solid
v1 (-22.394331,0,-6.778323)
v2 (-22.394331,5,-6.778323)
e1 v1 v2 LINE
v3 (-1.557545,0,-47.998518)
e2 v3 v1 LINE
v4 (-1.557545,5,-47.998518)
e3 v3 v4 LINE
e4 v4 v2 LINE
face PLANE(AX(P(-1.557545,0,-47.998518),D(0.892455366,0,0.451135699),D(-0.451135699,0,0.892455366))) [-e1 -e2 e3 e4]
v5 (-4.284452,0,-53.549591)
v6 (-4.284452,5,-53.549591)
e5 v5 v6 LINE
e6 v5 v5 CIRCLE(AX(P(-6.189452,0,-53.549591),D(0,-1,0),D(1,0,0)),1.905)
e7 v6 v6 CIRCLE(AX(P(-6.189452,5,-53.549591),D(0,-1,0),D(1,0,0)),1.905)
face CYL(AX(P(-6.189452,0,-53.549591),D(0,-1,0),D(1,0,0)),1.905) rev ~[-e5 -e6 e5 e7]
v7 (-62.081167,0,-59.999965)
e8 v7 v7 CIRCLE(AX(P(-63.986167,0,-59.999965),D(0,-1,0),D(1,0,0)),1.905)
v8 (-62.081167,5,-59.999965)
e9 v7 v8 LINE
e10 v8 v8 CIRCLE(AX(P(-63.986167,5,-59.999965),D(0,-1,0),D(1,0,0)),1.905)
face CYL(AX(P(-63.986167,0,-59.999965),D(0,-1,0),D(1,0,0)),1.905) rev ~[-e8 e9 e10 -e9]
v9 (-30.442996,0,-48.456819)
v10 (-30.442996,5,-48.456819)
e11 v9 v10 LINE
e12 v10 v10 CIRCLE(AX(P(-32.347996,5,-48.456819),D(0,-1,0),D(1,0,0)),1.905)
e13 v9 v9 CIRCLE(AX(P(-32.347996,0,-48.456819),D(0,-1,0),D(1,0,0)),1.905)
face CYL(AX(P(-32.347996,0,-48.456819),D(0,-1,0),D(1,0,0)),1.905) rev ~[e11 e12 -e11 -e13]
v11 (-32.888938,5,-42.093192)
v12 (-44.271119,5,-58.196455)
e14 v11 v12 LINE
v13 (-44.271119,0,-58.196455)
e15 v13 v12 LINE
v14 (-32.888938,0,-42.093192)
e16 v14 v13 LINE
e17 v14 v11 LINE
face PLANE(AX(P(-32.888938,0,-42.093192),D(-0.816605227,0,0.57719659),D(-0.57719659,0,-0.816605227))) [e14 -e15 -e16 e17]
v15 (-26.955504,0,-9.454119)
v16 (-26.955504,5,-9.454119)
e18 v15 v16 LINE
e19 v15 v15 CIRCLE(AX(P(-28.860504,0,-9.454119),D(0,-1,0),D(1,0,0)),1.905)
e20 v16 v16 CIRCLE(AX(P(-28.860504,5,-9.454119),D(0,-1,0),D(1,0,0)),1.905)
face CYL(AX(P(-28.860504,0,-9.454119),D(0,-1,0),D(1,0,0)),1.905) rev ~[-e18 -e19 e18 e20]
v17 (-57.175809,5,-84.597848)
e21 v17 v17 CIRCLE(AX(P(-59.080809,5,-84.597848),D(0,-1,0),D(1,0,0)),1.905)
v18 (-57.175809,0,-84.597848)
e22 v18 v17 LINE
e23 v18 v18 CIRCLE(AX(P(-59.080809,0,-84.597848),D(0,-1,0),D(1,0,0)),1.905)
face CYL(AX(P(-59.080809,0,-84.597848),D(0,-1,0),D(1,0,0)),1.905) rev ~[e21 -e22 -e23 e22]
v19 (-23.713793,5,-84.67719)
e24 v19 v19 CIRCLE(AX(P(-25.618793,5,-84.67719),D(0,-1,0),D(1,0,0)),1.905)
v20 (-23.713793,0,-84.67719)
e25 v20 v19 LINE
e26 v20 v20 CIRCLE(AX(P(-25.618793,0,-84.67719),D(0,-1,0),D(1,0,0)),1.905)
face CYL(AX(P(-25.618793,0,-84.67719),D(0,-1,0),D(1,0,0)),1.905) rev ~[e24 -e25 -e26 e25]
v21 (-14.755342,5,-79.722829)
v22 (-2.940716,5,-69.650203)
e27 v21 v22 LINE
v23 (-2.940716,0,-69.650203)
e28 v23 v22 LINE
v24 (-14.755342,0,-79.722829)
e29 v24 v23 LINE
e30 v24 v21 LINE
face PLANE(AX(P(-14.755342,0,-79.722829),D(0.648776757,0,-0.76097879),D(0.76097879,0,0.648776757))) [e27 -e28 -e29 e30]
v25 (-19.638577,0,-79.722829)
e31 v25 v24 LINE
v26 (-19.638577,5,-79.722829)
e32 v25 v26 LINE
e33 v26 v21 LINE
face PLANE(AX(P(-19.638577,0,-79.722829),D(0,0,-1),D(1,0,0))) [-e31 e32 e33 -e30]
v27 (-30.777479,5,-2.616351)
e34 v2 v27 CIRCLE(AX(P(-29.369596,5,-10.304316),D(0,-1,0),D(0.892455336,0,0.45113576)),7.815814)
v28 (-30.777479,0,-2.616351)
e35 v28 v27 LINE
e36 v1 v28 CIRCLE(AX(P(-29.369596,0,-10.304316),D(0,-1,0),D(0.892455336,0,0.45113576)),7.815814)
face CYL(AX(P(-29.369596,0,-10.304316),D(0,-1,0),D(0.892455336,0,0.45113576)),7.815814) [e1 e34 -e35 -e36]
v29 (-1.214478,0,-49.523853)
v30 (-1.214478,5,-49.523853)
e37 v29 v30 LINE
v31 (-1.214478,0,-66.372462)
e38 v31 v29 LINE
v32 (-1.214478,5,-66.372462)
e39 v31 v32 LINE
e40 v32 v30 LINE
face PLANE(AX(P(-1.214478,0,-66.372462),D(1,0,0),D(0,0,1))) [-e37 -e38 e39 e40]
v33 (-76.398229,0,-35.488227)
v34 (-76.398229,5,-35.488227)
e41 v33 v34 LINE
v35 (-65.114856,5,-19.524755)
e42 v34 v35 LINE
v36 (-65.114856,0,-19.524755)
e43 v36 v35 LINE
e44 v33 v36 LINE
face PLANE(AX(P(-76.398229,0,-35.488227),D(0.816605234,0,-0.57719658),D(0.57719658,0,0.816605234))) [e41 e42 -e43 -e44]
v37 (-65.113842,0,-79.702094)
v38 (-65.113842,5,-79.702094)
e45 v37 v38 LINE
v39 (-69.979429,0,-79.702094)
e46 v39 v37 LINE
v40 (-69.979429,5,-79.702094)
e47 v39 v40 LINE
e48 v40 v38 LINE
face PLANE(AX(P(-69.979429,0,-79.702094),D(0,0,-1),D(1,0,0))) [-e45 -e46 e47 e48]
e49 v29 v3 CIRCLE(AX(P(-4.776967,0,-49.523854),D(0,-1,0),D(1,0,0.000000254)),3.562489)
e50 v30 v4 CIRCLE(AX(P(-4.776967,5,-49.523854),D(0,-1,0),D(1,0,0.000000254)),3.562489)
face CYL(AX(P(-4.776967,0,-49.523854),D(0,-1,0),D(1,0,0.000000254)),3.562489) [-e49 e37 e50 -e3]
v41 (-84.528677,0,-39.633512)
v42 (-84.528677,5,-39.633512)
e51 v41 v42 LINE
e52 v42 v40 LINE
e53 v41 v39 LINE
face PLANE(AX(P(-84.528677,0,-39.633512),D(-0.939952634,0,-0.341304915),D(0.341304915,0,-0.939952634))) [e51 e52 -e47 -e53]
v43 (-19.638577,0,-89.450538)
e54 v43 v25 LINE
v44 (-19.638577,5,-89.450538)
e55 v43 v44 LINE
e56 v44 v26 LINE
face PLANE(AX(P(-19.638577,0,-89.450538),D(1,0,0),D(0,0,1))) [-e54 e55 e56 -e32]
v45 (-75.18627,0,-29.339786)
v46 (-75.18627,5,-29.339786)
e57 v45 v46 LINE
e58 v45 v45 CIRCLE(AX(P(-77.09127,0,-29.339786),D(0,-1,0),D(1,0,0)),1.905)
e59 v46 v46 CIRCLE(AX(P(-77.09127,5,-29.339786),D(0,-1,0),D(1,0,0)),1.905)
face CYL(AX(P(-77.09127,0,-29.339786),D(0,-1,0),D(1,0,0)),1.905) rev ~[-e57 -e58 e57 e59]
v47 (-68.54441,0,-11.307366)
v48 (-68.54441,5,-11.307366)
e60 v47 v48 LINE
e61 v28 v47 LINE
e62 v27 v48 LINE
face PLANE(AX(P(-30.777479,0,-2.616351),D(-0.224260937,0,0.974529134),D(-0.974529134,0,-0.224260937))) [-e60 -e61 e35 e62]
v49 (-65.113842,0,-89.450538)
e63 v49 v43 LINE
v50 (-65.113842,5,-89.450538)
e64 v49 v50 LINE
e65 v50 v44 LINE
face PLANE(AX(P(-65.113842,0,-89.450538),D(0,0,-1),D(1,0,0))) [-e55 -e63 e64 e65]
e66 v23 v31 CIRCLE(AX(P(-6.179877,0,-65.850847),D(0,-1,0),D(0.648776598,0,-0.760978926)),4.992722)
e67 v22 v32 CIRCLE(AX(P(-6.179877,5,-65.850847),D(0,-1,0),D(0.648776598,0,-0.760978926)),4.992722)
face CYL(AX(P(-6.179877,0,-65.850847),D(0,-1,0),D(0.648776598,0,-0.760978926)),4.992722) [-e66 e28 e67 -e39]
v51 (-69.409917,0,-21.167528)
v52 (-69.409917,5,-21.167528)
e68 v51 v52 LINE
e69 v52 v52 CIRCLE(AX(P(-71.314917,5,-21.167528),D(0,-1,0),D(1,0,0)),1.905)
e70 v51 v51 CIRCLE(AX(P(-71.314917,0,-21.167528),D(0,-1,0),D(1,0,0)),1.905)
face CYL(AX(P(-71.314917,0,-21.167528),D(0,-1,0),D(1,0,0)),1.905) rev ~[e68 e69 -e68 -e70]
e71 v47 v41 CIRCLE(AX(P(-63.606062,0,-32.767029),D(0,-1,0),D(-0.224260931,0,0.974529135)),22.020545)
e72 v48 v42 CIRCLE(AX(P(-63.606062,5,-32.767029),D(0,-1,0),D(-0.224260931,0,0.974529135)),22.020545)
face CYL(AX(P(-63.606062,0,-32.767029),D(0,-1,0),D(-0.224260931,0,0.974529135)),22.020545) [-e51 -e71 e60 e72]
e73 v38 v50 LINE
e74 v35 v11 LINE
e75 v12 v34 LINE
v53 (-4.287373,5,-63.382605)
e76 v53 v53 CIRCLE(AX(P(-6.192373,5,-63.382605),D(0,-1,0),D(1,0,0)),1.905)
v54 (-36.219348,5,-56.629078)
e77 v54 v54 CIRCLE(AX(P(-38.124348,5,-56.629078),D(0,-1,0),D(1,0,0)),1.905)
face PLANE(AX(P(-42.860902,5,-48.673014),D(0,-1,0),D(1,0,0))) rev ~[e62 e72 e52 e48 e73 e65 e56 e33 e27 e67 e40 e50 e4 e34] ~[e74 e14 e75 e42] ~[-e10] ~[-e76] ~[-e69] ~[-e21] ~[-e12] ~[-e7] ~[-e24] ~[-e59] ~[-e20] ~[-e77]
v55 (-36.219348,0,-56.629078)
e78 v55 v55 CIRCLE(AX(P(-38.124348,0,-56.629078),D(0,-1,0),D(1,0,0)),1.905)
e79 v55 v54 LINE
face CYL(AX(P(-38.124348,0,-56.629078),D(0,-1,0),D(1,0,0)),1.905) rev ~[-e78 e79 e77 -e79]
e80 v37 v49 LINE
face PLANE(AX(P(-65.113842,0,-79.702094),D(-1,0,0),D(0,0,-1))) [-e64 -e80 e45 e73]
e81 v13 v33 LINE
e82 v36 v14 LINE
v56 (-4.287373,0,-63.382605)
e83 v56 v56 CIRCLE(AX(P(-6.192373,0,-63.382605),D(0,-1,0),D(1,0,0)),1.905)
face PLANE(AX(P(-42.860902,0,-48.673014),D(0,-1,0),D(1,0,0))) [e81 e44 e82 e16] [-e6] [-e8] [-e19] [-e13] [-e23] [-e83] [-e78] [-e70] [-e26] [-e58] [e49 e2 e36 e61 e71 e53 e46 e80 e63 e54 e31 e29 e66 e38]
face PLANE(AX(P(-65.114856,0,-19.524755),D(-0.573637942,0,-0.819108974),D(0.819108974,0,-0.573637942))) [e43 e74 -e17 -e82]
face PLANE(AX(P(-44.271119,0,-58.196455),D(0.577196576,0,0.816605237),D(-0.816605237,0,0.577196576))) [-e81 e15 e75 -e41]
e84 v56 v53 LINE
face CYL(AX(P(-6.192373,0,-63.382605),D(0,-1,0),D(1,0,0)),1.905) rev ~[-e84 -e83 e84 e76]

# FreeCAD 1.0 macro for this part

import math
import FreeCAD as App
import Part
import Sketcher
from FreeCAD import Vector


def add_polygon(sketch, points):
    """Adds a closed chain of lines whose ends are joined by coincident constraints."""
    first, n = sketch.GeometryCount, len(points)
    for a, b in zip(points, points[1:] + points[:1]):
        sketch.addGeometry(Part.LineSegment(App.Vector(*a, 0), App.Vector(*b, 0)), False)
    for i in range(n):
        sketch.addConstraint(Sketcher.Constraint("Coincident", first + i, 2, first + (i + 1) % n, 1))

doc = App.newDocument("Part")
params = doc.addObject("Spreadsheet::Sheet", "Params")
for row, (alias, value) in enumerate([
    ("sketch1_diameter", "3.81 mm"),
    ("pad1_length", "5 mm"),
], start=1):
    params.set(f"A{row}", alias)
    params.set(f"B{row}", "=" + value)
    params.setAlias(f"B{row}", alias)

body = doc.addObject("PartDesign::Body", "Body")

# Sketch on XZ plane
sketch1 = doc.addObject("Sketcher::SketchObject", "Sketch")
body.addObject(sketch1)
sketch1.AttachmentSupport = (doc.XZ_Plane, [""])
sketch1.MapMode = "FlatFace"
sketch1.addGeometry(Part.LineSegment(Vector(-19.638577, -89.450538, 0), Vector(-19.638577, -79.722829, 0)), False)  # 0
sketch1.addGeometry(Part.LineSegment(Vector(-19.638577, -79.722829, 0), Vector(-14.755342, -79.722829, 0)), False)  # 1
sketch1.addGeometry(Part.LineSegment(Vector(-14.755342, -79.722829, 0), Vector(-2.940716, -69.650203, 0)), False)  # 2
sketch1.addGeometry(Part.ArcOfCircle(Part.Circle(Vector(-6.179877, -65.850847, 0), Vector(0, 0, 1), 4.992722), math.radians(-49.550574), math.radians(-5.996923)), False)  # 3
sketch1.addGeometry(Part.LineSegment(Vector(-1.214478, -66.372462, 0), Vector(-1.214478, -49.523853, 0)), False)  # 4
sketch1.addGeometry(Part.ArcOfCircle(Part.Circle(Vector(-4.776967, -49.523854, 0), Vector(0, 0, 1), 3.562489), math.radians(0.000015), math.radians(25.351215)), False)  # 5
sketch1.addGeometry(Part.LineSegment(Vector(-1.557545, -47.998518, 0), Vector(-22.394331, -6.778323, 0)), False)  # 6
sketch1.addGeometry(Part.ArcOfCircle(Part.Circle(Vector(-29.369596, -10.304316, 0), Vector(0, 0, 1), 7.815814), math.radians(26.816576), math.radians(100.377488)), False)  # 7
sketch1.addGeometry(Part.LineSegment(Vector(-30.777479, -2.616351, 0), Vector(-68.54441, -11.307366, 0)), False)  # 8
sketch1.addGeometry(Part.ArcOfCircle(Part.Circle(Vector(-63.606062, -32.767029, 0), Vector(0, 0, 1), 22.020545), math.radians(102.959422), math.radians(198.169047)), False)  # 9
sketch1.addGeometry(Part.LineSegment(Vector(-84.528677, -39.633512, 0), Vector(-69.979429, -79.702094, 0)), False)  # 10
sketch1.addGeometry(Part.LineSegment(Vector(-69.979429, -79.702094, 0), Vector(-65.113842, -79.702094, 0)), False)  # 11
sketch1.addGeometry(Part.LineSegment(Vector(-65.113842, -79.702094, 0), Vector(-65.113842, -89.450538, 0)), False)  # 12
sketch1.addGeometry(Part.LineSegment(Vector(-65.113842, -89.450538, 0), Vector(-19.638577, -89.450538, 0)), False)  # 13
sketch1.addGeometry(Part.Circle(Vector(-59.080809, -84.597848, 0), Vector(0, 0, 1), 1.905), False)  # 14
sketch1.addGeometry(Part.Circle(Vector(-63.986167, -59.999965, 0), Vector(0, 0, 1), 1.905), False)  # 15
sketch1.addGeometry(Part.Circle(Vector(-25.618793, -84.67719, 0), Vector(0, 0, 1), 1.905), False)  # 16
sketch1.addGeometry(Part.Circle(Vector(-38.124348, -56.629078, 0), Vector(0, 0, 1), 1.905), False)  # 17
sketch1.addGeometry(Part.Circle(Vector(-32.347996, -48.456819, 0), Vector(0, 0, 1), 1.905), False)  # 18
sketch1.addGeometry(Part.Circle(Vector(-6.192373, -63.382605, 0), Vector(0, 0, 1), 1.905), False)  # 19
sketch1.addGeometry(Part.Circle(Vector(-6.189452, -53.549591, 0), Vector(0, 0, 1), 1.905), False)  # 20
sketch1.addGeometry(Part.Circle(Vector(-77.09127, -29.339786, 0), Vector(0, 0, 1), 1.905), False)  # 21
add_polygon(sketch1, [(-32.888938, -42.093192), (-44.271119, -58.196455), (-76.398229, -35.488227), (-65.114856, -19.524755)])  # lines 22-25
sketch1.addGeometry(Part.Circle(Vector(-71.314917, -21.167528, 0), Vector(0, 0, 1), 1.905), False)  # 26
sketch1.addGeometry(Part.Circle(Vector(-28.860504, -9.454119, 0), Vector(0, 0, 1), 1.905), False)  # 27
sketch1.addConstraint([
    Sketcher.Constraint("Coincident", 0, 2, 1, 1),
    Sketcher.Constraint("Coincident", 1, 2, 2, 1),
    Sketcher.Constraint("Tangent", 2, 2, 3, 1),
    Sketcher.Constraint("Coincident", 3, 2, 4, 1),
    Sketcher.Constraint("Tangent", 4, 2, 5, 1),
    Sketcher.Constraint("Coincident", 5, 2, 6, 1),
    Sketcher.Constraint("Tangent", 6, 2, 7, 1),
    Sketcher.Constraint("Coincident", 7, 2, 8, 1),
    Sketcher.Constraint("Tangent", 8, 2, 9, 1),
    Sketcher.Constraint("Coincident", 9, 2, 10, 1),
    Sketcher.Constraint("Coincident", 10, 2, 11, 1),
    Sketcher.Constraint("Coincident", 11, 2, 12, 1),
    Sketcher.Constraint("Coincident", 12, 2, 13, 1),
    Sketcher.Constraint("Coincident", 13, 2, 0, 1),
    Sketcher.Constraint("Vertical", 0),
    Sketcher.Constraint("Horizontal", 1),
    Sketcher.Constraint("Vertical", 4),
    Sketcher.Constraint("Horizontal", 11),
    Sketcher.Constraint("Vertical", 12),
    Sketcher.Constraint("Horizontal", 13),
    Sketcher.Constraint("Equal", 14, 15),
    Sketcher.Constraint("Equal", 15, 16),
    Sketcher.Constraint("Equal", 16, 17),
    Sketcher.Constraint("Equal", 17, 18),
    Sketcher.Constraint("Equal", 18, 19),
    Sketcher.Constraint("Equal", 19, 20),
    Sketcher.Constraint("Equal", 20, 21),
    Sketcher.Constraint("Equal", 21, 26),
    Sketcher.Constraint("Equal", 26, 27),
    Sketcher.Constraint("Perpendicular", 22, 23),
    Sketcher.Constraint("Perpendicular", 23, 24),
    Sketcher.Constraint("Diameter", 14, 3.81),
    Sketcher.Constraint("Radius", 3, 4.992722),
    Sketcher.Constraint("Radius", 5, 3.562489),
    Sketcher.Constraint("Radius", 7, 7.815814),
    Sketcher.Constraint("Radius", 9, 22.020545),
    Sketcher.Constraint("DistanceY", 14, 3, 3, 3, 18.747001),
    Sketcher.Constraint("Distance", 10, 42.628299),
    Sketcher.Constraint("DistanceY", 0, 1, 0, 2, 9.727709),
    Sketcher.Constraint("DistanceY", 4, 1, 4, 2, 16.848609),
    Sketcher.Constraint("DistanceX", 15, 3, 5, 3, 59.2092),
    Sketcher.Constraint("DistanceY", 9, 3, 26, 3, 11.599501),
    Sketcher.Constraint("DistanceY", 18, 3, 27, 3, 39.0027),
    Sketcher.Constraint("DistanceX", 0, 2, 3, 3, 13.4587),
    Sketcher.Constraint("DistanceY", 2, 2, 19, 3, 6.267598),
    Sketcher.Constraint("DistanceX", 3, 3, 3, 2, 4.965399),
    Sketcher.Constraint("DistanceY", 23, 2, 9, 3, 2.721198),
    Sketcher.Constraint("DistanceY", 20, 3, 25, 2, 11.456399),
    Sketcher.Constraint("Distance", 8, 38.75403),
    Sketcher.Constraint("Distance", 24, 19.548579),
    Sketcher.Constraint("Distance", 25, 39.34265),
    Sketcher.Constraint("DistanceX", 1, 1, 1, 2, 4.883235),
    Sketcher.Constraint("DistanceX", 11, 1, 11, 2, 4.865587),
    Sketcher.Constraint("DistanceX", 13, 1, 13, 2, 45.475265),
    Sketcher.Constraint("DistanceY", 12, 2, 12, 1, 9.748444),
    Sketcher.Constraint("DistanceY", 9, 3, -1, 1, 32.767029),
    Sketcher.Constraint("DistanceX", 14, 3, -1, 1, 59.080809),
    Sketcher.Constraint("DistanceY", 14, 3, -1, 1, 84.597848),
    Sketcher.Constraint("DistanceY", 16, 3, -1, 1, 84.67719),
    Sketcher.Constraint("DistanceY", 18, 3, -1, 1, 48.456819),
    Sketcher.Constraint("DistanceY", 20, 3, -1, 1, 53.549591),
    Sketcher.Constraint("DistanceX", 21, 3, -1, 1, 77.09127),
    Sketcher.Constraint("DistanceY", 0, 2, -1, 1, 79.722829),
    Sketcher.Constraint("DistanceY", 5, 2, -1, 1, 47.998518),
    Sketcher.Constraint("DistanceX", 6, 2, -1, 1, 22.394331),
    Sketcher.Constraint("DistanceX", 7, 2, -1, 1, 30.777479),
    Sketcher.Constraint("DistanceY", 7, 2, -1, 1, 2.616351),
    Sketcher.Constraint("DistanceY", 9, 2, -1, 1, 39.633512),
    Sketcher.Constraint("DistanceX", 22, 2, -1, 1, 44.271119),
    Sketcher.Constraint("DistanceX", 23, 2, -1, 1, 76.398229),
    Sketcher.Constraint("DistanceY", 15, 3, 5, 3, 10.476111),
    Sketcher.Constraint("DistanceX", 9, 3, 16, 3, 37.987269),
    Sketcher.Constraint("DistanceX", 15, 3, 17, 3, 25.861819),
    Sketcher.Constraint("DistanceY", 16, 3, 17, 3, 28.048112),
    Sketcher.Constraint("DistanceX", 17, 3, 18, 3, 5.776352),
    Sketcher.Constraint("DistanceX", 16, 3, 19, 3, 19.42642),
    Sketcher.Constraint("DistanceX", 19, 3, 20, 3, 0.002921),
    Sketcher.Constraint("DistanceY", 15, 3, 21, 3, 30.660179),
    Sketcher.Constraint("DistanceX", 26, 3, 15, 3, 7.32875),
    Sketcher.Constraint("DistanceX", 7, 3, 27, 3, 0.509092),
])
sketch1.setExpression("Constraints[35]", "Params.sketch1_diameter")
pad1 = doc.addObject("PartDesign::Pad", "Pad")
body.addObject(pad1)
pad1.Profile = sketch1
pad1.setExpression("Length", "Params.pad1_length")
pad1.Reversed = True

doc.recompute()
